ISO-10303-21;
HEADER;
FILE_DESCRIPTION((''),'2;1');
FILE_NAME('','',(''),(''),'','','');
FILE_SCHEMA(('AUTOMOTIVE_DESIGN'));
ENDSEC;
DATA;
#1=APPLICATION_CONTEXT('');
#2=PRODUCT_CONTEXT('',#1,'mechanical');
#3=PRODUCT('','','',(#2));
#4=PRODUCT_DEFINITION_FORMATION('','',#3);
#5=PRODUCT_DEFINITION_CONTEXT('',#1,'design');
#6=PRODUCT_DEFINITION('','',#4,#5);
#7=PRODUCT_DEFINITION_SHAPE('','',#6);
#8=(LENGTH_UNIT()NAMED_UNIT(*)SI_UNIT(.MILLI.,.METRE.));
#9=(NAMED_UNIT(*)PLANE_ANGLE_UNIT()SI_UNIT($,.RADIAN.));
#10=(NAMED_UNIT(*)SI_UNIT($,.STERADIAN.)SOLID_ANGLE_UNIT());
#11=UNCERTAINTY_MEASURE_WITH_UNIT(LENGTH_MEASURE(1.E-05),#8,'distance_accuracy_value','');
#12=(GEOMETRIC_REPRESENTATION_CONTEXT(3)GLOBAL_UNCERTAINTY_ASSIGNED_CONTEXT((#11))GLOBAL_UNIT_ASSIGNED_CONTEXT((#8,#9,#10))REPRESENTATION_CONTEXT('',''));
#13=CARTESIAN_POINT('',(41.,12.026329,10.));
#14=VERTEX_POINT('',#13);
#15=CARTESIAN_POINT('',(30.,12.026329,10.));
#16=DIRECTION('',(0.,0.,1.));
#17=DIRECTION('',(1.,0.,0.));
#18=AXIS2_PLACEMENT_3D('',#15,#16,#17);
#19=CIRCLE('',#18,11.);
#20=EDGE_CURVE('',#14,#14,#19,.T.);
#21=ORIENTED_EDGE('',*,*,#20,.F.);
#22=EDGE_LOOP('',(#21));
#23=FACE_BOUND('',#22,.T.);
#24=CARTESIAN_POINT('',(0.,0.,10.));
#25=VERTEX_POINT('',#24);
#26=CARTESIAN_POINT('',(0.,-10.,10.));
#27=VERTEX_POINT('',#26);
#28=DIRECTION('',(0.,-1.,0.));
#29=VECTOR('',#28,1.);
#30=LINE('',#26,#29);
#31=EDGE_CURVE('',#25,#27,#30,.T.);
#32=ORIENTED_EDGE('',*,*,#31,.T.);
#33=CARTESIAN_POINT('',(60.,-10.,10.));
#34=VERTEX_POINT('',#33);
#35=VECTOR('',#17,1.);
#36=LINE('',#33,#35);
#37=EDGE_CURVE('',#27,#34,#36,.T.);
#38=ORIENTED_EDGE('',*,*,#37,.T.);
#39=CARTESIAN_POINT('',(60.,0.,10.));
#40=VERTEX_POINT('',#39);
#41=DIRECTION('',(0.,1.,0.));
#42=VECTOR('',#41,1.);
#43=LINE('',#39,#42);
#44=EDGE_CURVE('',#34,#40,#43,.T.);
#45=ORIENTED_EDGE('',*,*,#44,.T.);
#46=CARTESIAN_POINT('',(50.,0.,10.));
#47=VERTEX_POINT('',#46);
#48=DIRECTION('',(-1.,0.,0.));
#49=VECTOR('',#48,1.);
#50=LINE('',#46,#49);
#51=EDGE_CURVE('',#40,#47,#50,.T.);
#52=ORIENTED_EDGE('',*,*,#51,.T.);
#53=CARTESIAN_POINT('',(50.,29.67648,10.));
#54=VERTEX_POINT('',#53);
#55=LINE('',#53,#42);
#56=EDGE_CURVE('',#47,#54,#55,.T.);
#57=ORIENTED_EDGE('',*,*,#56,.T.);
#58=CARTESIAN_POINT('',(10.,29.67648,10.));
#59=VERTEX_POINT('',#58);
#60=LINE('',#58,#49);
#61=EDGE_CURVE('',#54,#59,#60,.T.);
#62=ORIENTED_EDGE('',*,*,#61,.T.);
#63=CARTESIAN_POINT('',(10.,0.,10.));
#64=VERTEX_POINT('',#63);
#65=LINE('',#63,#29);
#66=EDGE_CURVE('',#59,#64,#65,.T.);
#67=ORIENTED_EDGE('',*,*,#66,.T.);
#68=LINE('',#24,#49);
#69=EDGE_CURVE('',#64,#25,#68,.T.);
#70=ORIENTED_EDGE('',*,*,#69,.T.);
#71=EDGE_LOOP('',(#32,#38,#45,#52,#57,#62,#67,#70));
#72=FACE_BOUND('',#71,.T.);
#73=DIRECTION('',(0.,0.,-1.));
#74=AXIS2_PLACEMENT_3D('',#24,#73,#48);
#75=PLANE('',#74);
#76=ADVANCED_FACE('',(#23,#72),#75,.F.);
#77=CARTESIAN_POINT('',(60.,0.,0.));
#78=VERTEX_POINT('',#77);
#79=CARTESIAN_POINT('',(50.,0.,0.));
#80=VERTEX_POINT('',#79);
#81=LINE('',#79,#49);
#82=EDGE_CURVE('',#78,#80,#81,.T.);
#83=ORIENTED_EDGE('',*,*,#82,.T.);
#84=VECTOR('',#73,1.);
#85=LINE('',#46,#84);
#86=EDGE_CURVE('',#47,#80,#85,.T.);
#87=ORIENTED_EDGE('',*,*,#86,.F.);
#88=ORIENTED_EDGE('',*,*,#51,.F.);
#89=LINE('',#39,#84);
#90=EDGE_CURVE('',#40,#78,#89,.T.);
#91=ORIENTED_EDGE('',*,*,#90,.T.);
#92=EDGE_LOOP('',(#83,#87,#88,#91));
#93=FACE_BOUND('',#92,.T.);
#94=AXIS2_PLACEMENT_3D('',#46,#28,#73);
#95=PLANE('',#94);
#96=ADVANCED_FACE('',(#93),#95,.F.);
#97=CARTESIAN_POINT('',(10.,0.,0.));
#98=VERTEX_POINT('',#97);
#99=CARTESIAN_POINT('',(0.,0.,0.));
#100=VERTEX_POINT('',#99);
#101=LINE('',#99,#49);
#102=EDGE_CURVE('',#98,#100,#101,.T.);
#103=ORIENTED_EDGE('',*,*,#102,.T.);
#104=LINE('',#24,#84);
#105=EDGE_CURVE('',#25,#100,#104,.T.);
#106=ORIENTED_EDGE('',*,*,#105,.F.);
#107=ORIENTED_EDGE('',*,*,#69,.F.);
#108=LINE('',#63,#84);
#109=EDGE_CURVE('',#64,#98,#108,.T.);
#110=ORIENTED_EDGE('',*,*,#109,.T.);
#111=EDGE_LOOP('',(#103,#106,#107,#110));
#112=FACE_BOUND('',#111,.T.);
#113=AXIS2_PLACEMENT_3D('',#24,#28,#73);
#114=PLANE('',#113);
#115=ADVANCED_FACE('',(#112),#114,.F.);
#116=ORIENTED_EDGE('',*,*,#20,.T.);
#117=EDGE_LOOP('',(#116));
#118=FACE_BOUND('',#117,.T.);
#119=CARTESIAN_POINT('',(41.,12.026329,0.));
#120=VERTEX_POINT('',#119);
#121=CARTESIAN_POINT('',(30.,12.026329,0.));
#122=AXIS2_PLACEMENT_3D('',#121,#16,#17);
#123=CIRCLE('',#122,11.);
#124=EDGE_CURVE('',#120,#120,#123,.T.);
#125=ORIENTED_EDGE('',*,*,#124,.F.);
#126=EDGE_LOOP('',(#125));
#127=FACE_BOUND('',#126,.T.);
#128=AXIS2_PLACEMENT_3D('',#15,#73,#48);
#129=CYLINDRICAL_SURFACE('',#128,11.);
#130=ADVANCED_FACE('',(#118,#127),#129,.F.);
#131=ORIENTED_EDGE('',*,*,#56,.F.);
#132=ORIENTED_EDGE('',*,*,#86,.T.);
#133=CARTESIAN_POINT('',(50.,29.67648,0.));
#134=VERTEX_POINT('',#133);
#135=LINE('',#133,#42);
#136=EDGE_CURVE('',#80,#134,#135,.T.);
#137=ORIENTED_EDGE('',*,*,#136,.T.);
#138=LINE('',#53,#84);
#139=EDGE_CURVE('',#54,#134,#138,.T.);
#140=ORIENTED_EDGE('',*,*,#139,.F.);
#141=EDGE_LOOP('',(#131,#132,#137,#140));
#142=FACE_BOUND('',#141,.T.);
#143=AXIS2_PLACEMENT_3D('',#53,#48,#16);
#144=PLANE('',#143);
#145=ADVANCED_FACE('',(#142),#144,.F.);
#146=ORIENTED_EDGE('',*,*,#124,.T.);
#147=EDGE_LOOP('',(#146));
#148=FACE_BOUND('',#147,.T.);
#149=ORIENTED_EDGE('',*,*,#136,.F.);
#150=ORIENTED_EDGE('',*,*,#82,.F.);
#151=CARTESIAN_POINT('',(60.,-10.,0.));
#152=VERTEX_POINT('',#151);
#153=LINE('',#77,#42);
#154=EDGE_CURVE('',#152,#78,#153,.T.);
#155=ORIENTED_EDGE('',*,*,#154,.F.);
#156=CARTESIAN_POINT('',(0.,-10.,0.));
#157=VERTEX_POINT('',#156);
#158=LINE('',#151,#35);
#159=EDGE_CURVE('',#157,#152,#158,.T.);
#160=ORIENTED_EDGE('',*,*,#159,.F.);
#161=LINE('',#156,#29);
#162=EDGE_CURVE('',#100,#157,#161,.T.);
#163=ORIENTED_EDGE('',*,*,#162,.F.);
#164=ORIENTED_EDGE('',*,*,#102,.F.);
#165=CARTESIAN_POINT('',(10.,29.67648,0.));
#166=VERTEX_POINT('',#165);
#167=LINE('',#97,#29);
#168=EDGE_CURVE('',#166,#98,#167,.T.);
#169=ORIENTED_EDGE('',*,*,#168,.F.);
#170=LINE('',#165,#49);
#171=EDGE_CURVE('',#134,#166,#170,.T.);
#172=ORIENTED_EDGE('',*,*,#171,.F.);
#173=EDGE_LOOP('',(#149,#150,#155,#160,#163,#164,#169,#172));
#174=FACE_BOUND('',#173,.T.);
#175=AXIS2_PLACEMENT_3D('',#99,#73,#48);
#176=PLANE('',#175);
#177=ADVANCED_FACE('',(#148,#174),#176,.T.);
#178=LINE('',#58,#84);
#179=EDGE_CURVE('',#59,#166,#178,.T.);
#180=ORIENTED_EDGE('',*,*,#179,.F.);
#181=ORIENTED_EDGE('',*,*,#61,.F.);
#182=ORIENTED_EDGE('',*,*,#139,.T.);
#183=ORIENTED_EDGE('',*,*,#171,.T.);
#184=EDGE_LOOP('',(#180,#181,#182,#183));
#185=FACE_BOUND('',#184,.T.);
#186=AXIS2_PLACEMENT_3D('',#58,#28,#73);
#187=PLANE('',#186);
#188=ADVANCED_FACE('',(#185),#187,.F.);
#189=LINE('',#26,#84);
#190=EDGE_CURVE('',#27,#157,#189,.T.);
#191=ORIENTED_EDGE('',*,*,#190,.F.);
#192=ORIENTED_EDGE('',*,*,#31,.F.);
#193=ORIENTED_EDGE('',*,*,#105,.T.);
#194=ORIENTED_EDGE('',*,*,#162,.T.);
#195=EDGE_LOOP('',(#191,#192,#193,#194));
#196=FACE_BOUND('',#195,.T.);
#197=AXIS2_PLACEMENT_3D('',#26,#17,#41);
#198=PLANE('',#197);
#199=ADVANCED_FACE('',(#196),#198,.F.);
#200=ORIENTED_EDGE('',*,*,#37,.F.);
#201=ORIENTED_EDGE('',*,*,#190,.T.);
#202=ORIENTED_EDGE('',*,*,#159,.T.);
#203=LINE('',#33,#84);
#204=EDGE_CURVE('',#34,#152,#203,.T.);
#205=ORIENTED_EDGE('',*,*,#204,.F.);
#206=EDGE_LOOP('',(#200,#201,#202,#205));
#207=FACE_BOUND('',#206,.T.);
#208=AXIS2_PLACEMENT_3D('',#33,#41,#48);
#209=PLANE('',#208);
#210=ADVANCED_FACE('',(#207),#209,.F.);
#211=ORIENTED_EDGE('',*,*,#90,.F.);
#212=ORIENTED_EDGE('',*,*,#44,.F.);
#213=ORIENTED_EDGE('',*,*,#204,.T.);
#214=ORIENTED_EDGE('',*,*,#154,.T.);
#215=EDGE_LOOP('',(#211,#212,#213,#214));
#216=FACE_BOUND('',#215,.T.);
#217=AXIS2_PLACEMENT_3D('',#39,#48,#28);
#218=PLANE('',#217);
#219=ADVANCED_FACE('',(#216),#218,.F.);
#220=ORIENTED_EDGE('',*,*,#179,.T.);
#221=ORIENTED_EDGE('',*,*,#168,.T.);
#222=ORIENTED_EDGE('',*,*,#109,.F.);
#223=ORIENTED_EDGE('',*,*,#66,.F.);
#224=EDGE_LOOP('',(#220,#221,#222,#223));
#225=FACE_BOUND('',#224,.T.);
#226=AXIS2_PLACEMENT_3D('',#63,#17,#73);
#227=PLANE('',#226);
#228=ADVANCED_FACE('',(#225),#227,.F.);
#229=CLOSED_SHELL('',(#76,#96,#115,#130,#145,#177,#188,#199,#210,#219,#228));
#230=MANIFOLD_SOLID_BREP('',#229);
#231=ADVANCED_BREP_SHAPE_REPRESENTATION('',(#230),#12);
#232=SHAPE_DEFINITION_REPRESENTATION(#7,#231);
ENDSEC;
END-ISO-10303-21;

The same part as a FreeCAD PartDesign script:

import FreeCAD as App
import Part
import Sketcher
from FreeCAD import Vector
Q = App.Units.Quantity

doc = App.newDocument("Part")
body = doc.addObject("PartDesign::Body", "Body")

sketch1 = body.newObject("Sketcher::SketchObject", "Sketch")
sketch1.AttachmentSupport = (doc.getObject("XY_Plane"), [""])
sketch1.MapMode = "FlatFace"
sketch1.addGeometry(Part.LineSegment(Vector(10, 0, 0), Vector(0, 0, 0)), False)
sketch1.addGeometry(Part.LineSegment(Vector(0, 0, 0), Vector(0, -10, 0)), False)
sketch1.addGeometry(Part.LineSegment(Vector(0, -10, 0), Vector(60, -10, 0)), False)
sketch1.addGeometry(Part.LineSegment(Vector(60, -10, 0), Vector(60, 0, 0)), False)
sketch1.addGeometry(Part.LineSegment(Vector(60, 0, 0), Vector(50, 0, 0)), False)
sketch1.addGeometry(Part.LineSegment(Vector(50, 0, 0), Vector(50, 30, 0)), False)
sketch1.addGeometry(Part.LineSegment(Vector(50, 30, 0), Vector(10, 30, 0)), False)
sketch1.addGeometry(Part.LineSegment(Vector(10, 30, 0), Vector(10, 0, 0)), False)
sketch1.addGeometry(Part.Circle(Vector(30, 12, 0), Vector(0, 0, 1), 11), False)
sketch1.addConstraint(Sketcher.Constraint("Coincident", 0, 2, 1, 1))
sketch1.addConstraint(Sketcher.Constraint("Coincident", 1, 2, 2, 1))
sketch1.addConstraint(Sketcher.Constraint("Coincident", 2, 2, 3, 1))
sketch1.addConstraint(Sketcher.Constraint("Coincident", 3, 2, 4, 1))
sketch1.addConstraint(Sketcher.Constraint("Coincident", 4, 2, 5, 1))
sketch1.addConstraint(Sketcher.Constraint("Coincident", 5, 2, 6, 1))
sketch1.addConstraint(Sketcher.Constraint("Coincident", 6, 2, 7, 1))
sketch1.addConstraint(Sketcher.Constraint("Coincident", 7, 2, 0, 1))
sketch1.addConstraint(Sketcher.Constraint("Horizontal", 0))
sketch1.addConstraint(Sketcher.Constraint("Vertical", 1))
sketch1.addConstraint(Sketcher.Constraint("Horizontal", 2))
sketch1.addConstraint(Sketcher.Constraint("Vertical", 3))
sketch1.addConstraint(Sketcher.Constraint("Horizontal", 4))
sketch1.addConstraint(Sketcher.Constraint("Vertical", 5))
sketch1.addConstraint(Sketcher.Constraint("Horizontal", 6))
sketch1.addConstraint(Sketcher.Constraint("Vertical", 7))
sketch1.addConstraint(Sketcher.Constraint("Coincident", 0, 2, -1, 1))
sketch1.addConstraint(Sketcher.Constraint("PointOnObject", 3, 2, -1))
sketch1.addConstraint(Sketcher.Constraint("Equal", 0, 4))
sketch1.addConstraint(Sketcher.Constraint("Equal", 4, 1))
sketch1.addConstraint(Sketcher.Constraint("Diameter", 8, Q("22 mm")))
sketch1.addConstraint(Sketcher.Constraint("DistanceX", 0, 2, 0, 1, Q("10 mm")))
sketch1.addConstraint(Sketcher.Constraint("DistanceX", 2, 1, 2, 2, Q("60 mm")))
sketch1.addConstraint(Sketcher.Constraint("DistanceX", -1, 1, 8, 3, Q("30 mm")))
sketch1.addConstraint(Sketcher.Constraint("DistanceY", 5, 1, 5, 2, Q("29.67648 mm")))
sketch1.addConstraint(Sketcher.Constraint("DistanceY", -1, 1, 8, 3, Q("12.026329 mm")))
pad1 = body.newObject("PartDesign::Pad", "Pad")
pad1.Profile = sketch1
pad1.Length = 10

doc.recompute()
